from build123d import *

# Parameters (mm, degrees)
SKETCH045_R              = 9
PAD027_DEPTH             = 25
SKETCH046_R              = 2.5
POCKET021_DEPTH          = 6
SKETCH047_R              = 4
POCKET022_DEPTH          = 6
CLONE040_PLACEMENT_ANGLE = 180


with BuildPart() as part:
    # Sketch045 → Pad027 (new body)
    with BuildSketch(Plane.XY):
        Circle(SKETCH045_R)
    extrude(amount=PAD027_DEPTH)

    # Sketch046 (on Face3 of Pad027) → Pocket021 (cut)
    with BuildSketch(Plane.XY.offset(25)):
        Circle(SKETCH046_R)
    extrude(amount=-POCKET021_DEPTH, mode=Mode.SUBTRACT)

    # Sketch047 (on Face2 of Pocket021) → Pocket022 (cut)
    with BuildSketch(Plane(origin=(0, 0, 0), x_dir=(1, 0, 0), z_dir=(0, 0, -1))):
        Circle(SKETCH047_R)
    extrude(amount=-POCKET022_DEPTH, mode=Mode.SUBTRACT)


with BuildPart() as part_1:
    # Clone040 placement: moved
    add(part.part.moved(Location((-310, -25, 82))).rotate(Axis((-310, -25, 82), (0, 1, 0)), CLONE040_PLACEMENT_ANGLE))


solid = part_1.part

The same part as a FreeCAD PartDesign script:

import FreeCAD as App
import Part
import Sketcher

V = App.Vector

doc = App.newDocument("Part")
body = doc.addObject("PartDesign::Body", "Body")

# Sketch on XY plane
sketch1 = body.newObject("Sketcher::SketchObject", "Sketch")
sketch1.AttachmentSupport = (doc.getObject("XY_Plane"), [""])
sketch1.MapMode = "FlatFace"
sketch1.addGeometry(Part.Circle(V(0, 0, 0), V(0, 0, 1), 9), False)
sketch1.addConstraint([
    Sketcher.Constraint("Coincident", 0, 3, -1, 1),
    Sketcher.Constraint("Diameter", 0, 18.0),
])
pad1 = body.newObject("PartDesign::Pad", "Pad")
pad1.Profile = sketch1
pad1.Length = 25

# Sketch on XY plane
sketch2 = body.newObject("Sketcher::SketchObject", "Sketch001")
sketch2.AttachmentSupport = (doc.getObject("XY_Plane"), [""])
sketch2.MapMode = "FlatFace"
sketch2.AttachmentOffset = App.Placement(V(0, 0, 25), App.Rotation())
sketch2.addGeometry(Part.Circle(V(0, 0, 0), V(0, 0, 1), 2.5), False)
sketch2.addConstraint([
    Sketcher.Constraint("Coincident", 0, 3, -1, 1),
    Sketcher.Constraint("Diameter", 0, 5.0),
])
pocket1 = body.newObject("PartDesign::Pocket", "Pocket")
pocket1.Profile = sketch2
pocket1.Length = 6

# Sketch on XY plane
sketch3 = body.newObject("Sketcher::SketchObject", "Sketch002")
sketch3.AttachmentSupport = (doc.getObject("XY_Plane"), [""])
sketch3.MapMode = "FlatFace"
sketch3.addGeometry(Part.Circle(V(0, 0, 0), V(0, 0, 1), 4), False)
sketch3.addConstraint([
    Sketcher.Constraint("Coincident", 0, 3, -1, 1),
    Sketcher.Constraint("Diameter", 0, 8.0),
])
pocket2 = body.newObject("PartDesign::Pocket", "Pocket001")
pocket2.Profile = sketch3
pocket2.Length = 6
pocket2.Reversed = True
body2 = doc.addObject("PartDesign::Body", "Body001")
doc.recompute()

body.Placement = App.Placement(V(-310, -25, 82), App.Rotation(V(0, 1, 0), 180))
boolean = body2.newObject("PartDesign::Boolean", "Boolean")
boolean.Type = "Fuse"
boolean.addObjects([body])

doc.recompute()
